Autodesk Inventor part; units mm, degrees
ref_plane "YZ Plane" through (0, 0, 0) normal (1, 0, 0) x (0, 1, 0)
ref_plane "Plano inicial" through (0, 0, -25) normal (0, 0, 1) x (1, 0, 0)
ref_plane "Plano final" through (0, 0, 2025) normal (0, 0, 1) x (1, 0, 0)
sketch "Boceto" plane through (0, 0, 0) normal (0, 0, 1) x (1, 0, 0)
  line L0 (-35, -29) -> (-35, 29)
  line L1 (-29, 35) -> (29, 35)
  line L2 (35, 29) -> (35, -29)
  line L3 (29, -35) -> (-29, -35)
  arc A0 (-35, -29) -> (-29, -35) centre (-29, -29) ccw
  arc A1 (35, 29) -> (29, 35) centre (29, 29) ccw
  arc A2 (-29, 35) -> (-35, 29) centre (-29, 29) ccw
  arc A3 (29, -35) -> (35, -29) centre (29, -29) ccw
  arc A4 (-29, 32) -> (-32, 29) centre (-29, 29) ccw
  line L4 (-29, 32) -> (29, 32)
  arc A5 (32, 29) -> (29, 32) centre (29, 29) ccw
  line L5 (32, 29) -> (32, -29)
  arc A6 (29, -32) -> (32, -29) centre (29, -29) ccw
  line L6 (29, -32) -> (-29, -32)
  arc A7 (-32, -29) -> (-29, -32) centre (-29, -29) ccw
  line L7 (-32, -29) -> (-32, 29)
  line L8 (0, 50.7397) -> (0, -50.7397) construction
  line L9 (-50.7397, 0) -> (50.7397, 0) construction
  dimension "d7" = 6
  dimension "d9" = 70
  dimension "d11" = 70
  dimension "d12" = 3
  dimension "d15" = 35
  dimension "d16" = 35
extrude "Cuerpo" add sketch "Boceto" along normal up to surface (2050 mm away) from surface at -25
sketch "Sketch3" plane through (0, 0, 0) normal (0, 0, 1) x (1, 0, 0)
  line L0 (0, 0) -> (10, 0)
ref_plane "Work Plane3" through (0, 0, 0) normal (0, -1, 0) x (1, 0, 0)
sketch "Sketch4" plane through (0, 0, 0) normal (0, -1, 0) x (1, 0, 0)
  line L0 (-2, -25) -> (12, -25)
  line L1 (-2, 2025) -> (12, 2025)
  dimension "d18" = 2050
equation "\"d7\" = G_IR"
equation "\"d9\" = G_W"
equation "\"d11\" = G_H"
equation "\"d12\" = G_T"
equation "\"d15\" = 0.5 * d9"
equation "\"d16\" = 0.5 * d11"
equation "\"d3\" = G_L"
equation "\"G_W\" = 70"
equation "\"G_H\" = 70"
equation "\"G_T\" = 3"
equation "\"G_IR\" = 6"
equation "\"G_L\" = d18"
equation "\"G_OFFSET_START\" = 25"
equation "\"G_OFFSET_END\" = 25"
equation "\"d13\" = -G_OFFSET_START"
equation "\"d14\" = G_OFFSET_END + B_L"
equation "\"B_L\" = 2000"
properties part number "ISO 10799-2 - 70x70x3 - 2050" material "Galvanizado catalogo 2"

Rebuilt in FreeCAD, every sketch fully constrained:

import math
import FreeCAD as App
import Part
import Sketcher

V = App.Vector
Q = App.Units.Quantity

doc = App.newDocument("Part")
params = doc.addObject("Spreadsheet::Sheet", "Params")
for row, (alias, value) in enumerate([
    ("sketch1_radius", "6 mm"),
    ("sketch1_radius2", "3 mm"),
    ("pad1_length", "2050 mm"),
], start=1):
    params.set(f"A{row}", alias)
    params.set(f"B{row}", "=" + value)
    params.setAlias(f"B{row}", alias)

body = doc.addObject("PartDesign::Body", "Body")

# Sketch on XY plane
sketch1 = doc.addObject("Sketcher::SketchObject", "Sketch")
body.addObject(sketch1)
sketch1.AttachmentSupport = (doc.XY_Plane, [""])
sketch1.MapMode = "FlatFace"
sketch1.AttachmentOffset = App.Placement(V(0, 0, -25), App.Rotation())
sketch1.addGeometry([
    Part.LineSegment(V(-35, 29, 0), V(-35, -29, 0)),  # 0
    Part.ArcOfCircle(Part.Circle(V(-29, -29, 0), V(0, 0, 1), 6), math.radians(180), math.radians(270)),  # 1
    Part.LineSegment(V(-29, -35, 0), V(29, -35, 0)),  # 2
    Part.ArcOfCircle(Part.Circle(V(29, -29, 0), V(0, 0, 1), 6), math.radians(-90), math.radians(0)),  # 3
    Part.LineSegment(V(35, -29, 0), V(35, 29, 0)),  # 4
    Part.ArcOfCircle(Part.Circle(V(29, 29, 0), V(0, 0, 1), 6), math.radians(0), math.radians(90)),  # 5
    Part.LineSegment(V(29, 35, 0), V(-29, 35, 0)),  # 6
    Part.ArcOfCircle(Part.Circle(V(-29, 29, 0), V(0, 0, 1), 6), math.radians(90), math.radians(180)),  # 7
    Part.ArcOfCircle(Part.Circle(V(-29, 29, 0), V(0, 0, 1), 3), math.radians(90), math.radians(180)),  # 8
    Part.LineSegment(V(-29, 32, 0), V(29, 32, 0)),  # 9
    Part.ArcOfCircle(Part.Circle(V(29, 29, 0), V(0, 0, 1), 3), math.radians(0), math.radians(90)),  # 10
    Part.LineSegment(V(32, 29, 0), V(32, -29, 0)),  # 11
    Part.ArcOfCircle(Part.Circle(V(29, -29, 0), V(0, 0, 1), 3), math.radians(-90), math.radians(0)),  # 12
    Part.LineSegment(V(29, -32, 0), V(-29, -32, 0)),  # 13
    Part.ArcOfCircle(Part.Circle(V(-29, -29, 0), V(0, 0, 1), 3), math.radians(180), math.radians(270)),  # 14
    Part.LineSegment(V(-32, -29, 0), V(-32, 29, 0)),  # 15
], False)
sketch1.addConstraint([
    Sketcher.Constraint("Tangent", 0, 2, 1, 1),
    Sketcher.Constraint("Tangent", 1, 2, 2, 1),
    Sketcher.Constraint("Tangent", 2, 2, 3, 1),
    Sketcher.Constraint("Tangent", 3, 2, 4, 1),
    Sketcher.Constraint("Tangent", 4, 2, 5, 1),
    Sketcher.Constraint("Tangent", 5, 2, 6, 1),
    Sketcher.Constraint("Tangent", 6, 2, 7, 1),
    Sketcher.Constraint("Tangent", 7, 2, 0, 1),
    Sketcher.Constraint("Tangent", 8, 1, 9, 1),
    Sketcher.Constraint("Tangent", 9, 2, 10, 2),
    Sketcher.Constraint("Tangent", 10, 1, 11, 1),
    Sketcher.Constraint("Tangent", 11, 2, 12, 2),
    Sketcher.Constraint("Tangent", 12, 1, 13, 1),
    Sketcher.Constraint("Tangent", 13, 2, 14, 2),
    Sketcher.Constraint("Tangent", 14, 1, 15, 1),
    Sketcher.Constraint("Tangent", 15, 2, 8, 2),
    Sketcher.Constraint("Vertical", 0),
    Sketcher.Constraint("Horizontal", 2),
    Sketcher.Constraint("Vertical", 4),
    Sketcher.Constraint("Horizontal", 6),
    Sketcher.Constraint("Horizontal", 9),
    Sketcher.Constraint("Vertical", 11),
    Sketcher.Constraint("Horizontal", 13),
    Sketcher.Constraint("Vertical", 15),
    Sketcher.Constraint("Coincident", 8, 3, 7, 3),
    Sketcher.Constraint("Coincident", 10, 3, 5, 3),
    Sketcher.Constraint("Coincident", 12, 3, 3, 3),
    Sketcher.Constraint("Equal", 1, 3),
    Sketcher.Constraint("Equal", 3, 5),
    Sketcher.Constraint("Equal", 5, 7),
    Sketcher.Constraint("Equal", 12, 14),
    Sketcher.Constraint("Symmetric", 1, 3, 5, 3, -1, 1),
    Sketcher.Constraint("Equal", 13, 0),
    Sketcher.Constraint("Radius", 1, Q("6 mm")),
    Sketcher.Constraint("Radius", 8, Q("3 mm")),
    Sketcher.Constraint("DistanceX", 0, 2, -1, 1, Q("35 mm")),
])
sketch1.setExpression("Constraints[33]", "Params.sketch1_radius")
sketch1.setExpression("Constraints[34]", "Params.sketch1_radius2")
pad1 = doc.addObject("PartDesign::Pad", "Pad")
body.addObject(pad1)
pad1.Profile = sketch1
pad1.setExpression("Length", "Params.pad1_length")

doc.recompute()
